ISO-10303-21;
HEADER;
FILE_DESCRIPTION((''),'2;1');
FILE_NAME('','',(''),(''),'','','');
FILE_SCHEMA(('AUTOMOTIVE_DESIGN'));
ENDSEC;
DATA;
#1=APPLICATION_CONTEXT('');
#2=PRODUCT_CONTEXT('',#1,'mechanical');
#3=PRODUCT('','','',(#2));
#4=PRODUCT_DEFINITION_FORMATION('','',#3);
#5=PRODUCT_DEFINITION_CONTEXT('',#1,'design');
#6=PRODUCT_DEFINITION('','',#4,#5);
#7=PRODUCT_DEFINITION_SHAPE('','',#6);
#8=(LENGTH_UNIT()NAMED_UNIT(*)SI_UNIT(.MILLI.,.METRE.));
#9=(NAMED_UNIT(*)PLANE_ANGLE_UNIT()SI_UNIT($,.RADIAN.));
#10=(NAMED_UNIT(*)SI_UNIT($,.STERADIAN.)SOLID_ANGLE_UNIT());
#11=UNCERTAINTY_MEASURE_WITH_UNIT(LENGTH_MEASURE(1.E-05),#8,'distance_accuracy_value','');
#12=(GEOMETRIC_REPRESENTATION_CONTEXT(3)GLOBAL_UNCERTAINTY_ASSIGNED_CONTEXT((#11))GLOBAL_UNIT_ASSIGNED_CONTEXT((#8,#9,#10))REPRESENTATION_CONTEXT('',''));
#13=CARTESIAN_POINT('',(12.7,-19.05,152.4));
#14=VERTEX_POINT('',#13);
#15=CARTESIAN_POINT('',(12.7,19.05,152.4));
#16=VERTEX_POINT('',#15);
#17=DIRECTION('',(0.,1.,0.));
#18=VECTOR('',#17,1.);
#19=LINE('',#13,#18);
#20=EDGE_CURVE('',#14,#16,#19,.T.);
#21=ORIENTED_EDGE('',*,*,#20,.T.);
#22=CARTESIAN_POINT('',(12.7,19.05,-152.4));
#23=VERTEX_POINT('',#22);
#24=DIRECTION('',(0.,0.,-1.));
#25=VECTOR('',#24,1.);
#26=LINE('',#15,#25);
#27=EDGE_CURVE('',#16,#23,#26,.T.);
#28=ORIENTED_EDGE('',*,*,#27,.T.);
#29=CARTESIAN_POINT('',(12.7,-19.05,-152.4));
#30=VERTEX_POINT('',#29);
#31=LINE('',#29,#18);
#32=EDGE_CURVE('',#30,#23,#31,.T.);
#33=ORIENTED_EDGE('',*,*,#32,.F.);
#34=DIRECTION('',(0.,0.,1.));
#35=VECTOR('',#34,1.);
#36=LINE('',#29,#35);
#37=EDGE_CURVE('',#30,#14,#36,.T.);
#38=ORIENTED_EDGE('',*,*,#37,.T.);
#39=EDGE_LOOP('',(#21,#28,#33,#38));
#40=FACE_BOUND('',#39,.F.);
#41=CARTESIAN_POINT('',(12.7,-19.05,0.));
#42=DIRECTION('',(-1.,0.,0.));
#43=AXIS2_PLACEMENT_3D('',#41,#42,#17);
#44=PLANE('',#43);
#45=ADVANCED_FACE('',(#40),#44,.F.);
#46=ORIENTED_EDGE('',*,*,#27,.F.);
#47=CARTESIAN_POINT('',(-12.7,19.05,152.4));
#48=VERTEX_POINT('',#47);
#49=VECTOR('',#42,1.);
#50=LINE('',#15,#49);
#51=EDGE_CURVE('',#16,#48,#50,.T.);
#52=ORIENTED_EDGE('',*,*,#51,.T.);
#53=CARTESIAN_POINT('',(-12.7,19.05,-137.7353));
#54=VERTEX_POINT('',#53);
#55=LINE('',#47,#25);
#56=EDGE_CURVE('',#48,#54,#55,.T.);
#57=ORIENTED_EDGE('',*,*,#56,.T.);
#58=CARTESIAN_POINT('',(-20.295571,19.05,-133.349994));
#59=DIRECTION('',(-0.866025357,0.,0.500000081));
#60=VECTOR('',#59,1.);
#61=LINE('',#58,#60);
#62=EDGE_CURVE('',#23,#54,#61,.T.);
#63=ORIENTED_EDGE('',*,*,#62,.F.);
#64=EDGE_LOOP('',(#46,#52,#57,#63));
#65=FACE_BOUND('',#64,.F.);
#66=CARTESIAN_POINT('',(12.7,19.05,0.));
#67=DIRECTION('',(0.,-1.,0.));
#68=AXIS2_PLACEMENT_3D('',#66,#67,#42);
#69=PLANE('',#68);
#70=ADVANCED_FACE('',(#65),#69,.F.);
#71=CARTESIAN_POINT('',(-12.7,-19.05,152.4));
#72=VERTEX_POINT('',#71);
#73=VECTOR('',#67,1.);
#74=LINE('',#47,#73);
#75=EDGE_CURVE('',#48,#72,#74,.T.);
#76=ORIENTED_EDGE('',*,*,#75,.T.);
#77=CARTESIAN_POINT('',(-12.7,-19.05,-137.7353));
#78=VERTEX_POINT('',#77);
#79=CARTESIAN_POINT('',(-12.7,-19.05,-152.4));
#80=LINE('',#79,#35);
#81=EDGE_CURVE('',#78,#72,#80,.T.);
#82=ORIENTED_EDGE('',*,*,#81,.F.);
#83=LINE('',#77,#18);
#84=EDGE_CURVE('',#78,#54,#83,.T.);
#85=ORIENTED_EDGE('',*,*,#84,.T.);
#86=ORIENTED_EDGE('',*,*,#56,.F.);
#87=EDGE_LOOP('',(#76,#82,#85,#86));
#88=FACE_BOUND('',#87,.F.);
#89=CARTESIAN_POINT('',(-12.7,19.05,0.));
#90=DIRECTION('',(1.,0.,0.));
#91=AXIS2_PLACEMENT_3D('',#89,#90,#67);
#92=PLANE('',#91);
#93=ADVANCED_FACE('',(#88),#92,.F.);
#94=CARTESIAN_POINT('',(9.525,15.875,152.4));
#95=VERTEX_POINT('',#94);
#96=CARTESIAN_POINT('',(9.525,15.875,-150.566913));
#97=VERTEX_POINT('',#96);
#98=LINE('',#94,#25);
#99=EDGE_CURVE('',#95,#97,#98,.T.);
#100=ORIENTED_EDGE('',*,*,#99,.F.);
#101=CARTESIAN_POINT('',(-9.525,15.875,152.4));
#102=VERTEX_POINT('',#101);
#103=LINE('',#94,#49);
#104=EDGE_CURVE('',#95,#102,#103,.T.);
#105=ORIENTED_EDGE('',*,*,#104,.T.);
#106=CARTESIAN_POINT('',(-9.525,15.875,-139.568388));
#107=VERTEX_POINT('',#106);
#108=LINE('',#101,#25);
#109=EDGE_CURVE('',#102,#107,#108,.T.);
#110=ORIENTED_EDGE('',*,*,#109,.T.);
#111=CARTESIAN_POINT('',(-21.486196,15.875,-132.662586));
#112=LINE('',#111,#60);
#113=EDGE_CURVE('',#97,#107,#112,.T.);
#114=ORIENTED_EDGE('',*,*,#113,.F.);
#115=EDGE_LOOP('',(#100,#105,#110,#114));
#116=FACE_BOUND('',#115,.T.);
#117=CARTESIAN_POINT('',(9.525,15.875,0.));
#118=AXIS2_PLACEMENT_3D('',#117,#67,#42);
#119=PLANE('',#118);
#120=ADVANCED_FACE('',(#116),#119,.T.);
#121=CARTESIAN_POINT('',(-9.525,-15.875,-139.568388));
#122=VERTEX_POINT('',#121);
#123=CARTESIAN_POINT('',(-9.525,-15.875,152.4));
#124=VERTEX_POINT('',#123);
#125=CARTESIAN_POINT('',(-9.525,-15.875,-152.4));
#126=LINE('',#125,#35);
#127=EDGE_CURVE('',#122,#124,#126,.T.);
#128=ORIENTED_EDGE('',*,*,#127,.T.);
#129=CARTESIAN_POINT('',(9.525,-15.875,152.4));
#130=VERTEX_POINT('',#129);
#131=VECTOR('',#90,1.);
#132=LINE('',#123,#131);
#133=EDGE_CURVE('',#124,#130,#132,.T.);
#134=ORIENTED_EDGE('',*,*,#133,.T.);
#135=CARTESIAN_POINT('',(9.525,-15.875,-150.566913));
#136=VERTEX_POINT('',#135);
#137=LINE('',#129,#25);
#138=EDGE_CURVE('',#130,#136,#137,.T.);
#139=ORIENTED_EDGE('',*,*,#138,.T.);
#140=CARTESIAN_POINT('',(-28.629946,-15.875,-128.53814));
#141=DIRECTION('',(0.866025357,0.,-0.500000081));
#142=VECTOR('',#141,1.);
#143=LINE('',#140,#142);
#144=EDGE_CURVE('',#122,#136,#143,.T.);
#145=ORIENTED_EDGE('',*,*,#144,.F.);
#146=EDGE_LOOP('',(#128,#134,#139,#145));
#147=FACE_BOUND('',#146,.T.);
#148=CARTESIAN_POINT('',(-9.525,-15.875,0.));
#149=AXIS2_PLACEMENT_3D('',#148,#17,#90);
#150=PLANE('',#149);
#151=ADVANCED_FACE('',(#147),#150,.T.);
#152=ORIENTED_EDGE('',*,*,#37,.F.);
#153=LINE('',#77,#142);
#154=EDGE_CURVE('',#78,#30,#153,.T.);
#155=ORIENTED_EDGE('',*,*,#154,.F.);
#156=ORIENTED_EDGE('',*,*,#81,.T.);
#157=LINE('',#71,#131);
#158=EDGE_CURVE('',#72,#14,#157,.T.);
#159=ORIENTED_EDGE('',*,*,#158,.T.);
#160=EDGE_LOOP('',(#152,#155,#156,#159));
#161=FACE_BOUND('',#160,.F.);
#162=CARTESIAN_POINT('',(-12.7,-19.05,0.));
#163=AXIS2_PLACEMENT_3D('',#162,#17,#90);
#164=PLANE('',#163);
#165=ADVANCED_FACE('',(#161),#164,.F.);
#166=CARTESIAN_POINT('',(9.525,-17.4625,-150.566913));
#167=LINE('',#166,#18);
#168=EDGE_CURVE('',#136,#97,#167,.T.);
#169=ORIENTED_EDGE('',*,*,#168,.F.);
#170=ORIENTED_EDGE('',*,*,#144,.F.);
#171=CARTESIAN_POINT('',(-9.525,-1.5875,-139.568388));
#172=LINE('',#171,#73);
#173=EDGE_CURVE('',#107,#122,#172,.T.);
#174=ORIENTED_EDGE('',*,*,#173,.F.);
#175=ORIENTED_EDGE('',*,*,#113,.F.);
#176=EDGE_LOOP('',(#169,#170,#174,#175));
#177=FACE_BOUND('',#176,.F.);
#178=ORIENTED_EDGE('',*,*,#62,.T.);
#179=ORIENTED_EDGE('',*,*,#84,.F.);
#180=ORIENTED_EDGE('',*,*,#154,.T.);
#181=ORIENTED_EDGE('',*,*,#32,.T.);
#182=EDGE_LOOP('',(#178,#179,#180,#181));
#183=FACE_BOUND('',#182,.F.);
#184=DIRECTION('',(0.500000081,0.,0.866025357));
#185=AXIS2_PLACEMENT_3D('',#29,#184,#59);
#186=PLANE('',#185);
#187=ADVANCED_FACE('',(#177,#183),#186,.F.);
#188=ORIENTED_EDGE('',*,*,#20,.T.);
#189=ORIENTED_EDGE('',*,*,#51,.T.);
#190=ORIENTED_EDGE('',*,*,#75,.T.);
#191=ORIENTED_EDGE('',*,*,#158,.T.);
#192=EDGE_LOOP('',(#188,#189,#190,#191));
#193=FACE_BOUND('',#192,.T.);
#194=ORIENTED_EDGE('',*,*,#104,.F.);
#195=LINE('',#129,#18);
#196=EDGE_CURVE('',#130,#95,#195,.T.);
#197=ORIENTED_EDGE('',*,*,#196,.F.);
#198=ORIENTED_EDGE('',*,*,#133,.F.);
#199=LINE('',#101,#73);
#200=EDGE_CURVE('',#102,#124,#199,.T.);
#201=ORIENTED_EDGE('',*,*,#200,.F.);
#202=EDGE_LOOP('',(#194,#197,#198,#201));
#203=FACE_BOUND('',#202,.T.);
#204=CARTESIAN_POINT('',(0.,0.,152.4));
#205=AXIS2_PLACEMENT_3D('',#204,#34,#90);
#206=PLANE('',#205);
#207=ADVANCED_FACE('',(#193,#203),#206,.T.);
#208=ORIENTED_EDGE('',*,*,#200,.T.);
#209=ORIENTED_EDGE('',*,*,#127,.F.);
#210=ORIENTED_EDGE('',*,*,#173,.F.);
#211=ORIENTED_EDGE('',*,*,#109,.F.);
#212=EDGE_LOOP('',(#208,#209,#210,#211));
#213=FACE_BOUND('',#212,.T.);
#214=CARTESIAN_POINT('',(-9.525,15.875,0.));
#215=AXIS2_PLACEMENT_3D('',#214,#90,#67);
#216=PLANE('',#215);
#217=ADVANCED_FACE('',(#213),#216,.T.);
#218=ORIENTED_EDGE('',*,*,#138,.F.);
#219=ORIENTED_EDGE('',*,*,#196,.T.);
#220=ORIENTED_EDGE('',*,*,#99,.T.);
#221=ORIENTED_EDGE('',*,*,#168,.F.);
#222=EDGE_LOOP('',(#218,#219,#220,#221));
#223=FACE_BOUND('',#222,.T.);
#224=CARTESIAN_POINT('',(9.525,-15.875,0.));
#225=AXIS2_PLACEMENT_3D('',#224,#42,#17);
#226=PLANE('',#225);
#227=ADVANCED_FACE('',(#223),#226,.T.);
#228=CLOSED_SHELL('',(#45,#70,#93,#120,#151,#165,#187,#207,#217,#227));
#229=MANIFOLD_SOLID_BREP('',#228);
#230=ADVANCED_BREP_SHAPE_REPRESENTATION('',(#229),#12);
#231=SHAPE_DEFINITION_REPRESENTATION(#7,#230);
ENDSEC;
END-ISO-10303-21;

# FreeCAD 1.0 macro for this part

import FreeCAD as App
import Part
import Sketcher

V = App.Vector
Q = App.Units.Quantity

doc = App.newDocument("Part")
body = doc.addObject("PartDesign::Body", "Body")

# Sketch on XY plane
sketch1 = doc.addObject("Sketcher::SketchObject", "Sketch")
body.addObject(sketch1)
sketch1.AttachmentSupport = (doc.XY_Plane, [""])
sketch1.MapMode = "FlatFace"
sketch1.addGeometry([
    Part.LineSegment(V(-13, 19, 0), V(-13, -19, 0)),  # 0
    Part.LineSegment(V(-13, -19, 0), V(13, -19, 0)),  # 1
    Part.LineSegment(V(13, -19, 0), V(13, 19, 0)),  # 2
    Part.LineSegment(V(13, 19, 0), V(-13, 19, 0)),  # 3
    Part.LineSegment(V(10, -16, 0), V(-10, -16, 0)),  # 4
    Part.LineSegment(V(-10, -16, 0), V(-10, 16, 0)),  # 5
    Part.LineSegment(V(-10, 16, 0), V(10, 16, 0)),  # 6
    Part.LineSegment(V(10, 16, 0), V(10, -16, 0)),  # 7
], False)
sketch1.addConstraint([
    Sketcher.Constraint("Coincident", 0, 2, 1, 1),
    Sketcher.Constraint("Coincident", 1, 2, 2, 1),
    Sketcher.Constraint("Coincident", 2, 2, 3, 1),
    Sketcher.Constraint("Coincident", 3, 2, 0, 1),
    Sketcher.Constraint("Coincident", 4, 2, 5, 1),
    Sketcher.Constraint("Coincident", 5, 2, 6, 1),
    Sketcher.Constraint("Coincident", 6, 2, 7, 1),
    Sketcher.Constraint("Coincident", 7, 2, 4, 1),
    Sketcher.Constraint("Vertical", 0),
    Sketcher.Constraint("Horizontal", 1),
    Sketcher.Constraint("Vertical", 2),
    Sketcher.Constraint("Horizontal", 3),
    Sketcher.Constraint("Horizontal", 4),
    Sketcher.Constraint("Vertical", 5),
    Sketcher.Constraint("Horizontal", 6),
    Sketcher.Constraint("Vertical", 7),
    Sketcher.Constraint("Symmetric", 0, 2, 2, 2, -1, 1),
    Sketcher.Constraint("Symmetric", 4, 2, 6, 2, -1, 1),
    Sketcher.Constraint("DistanceX", 1, 1, 1, 2, Q("1 in")),
    Sketcher.Constraint("DistanceY", 0, 2, 0, 1, Q("1.5 in")),
    Sketcher.Constraint("DistanceX", 0, 2, 4, 2, Q("0.125 in")),
    Sketcher.Constraint("DistanceY", 0, 2, 4, 2, Q("0.125 in")),
])
pad1 = doc.addObject("PartDesign::Pad", "Pad")
body.addObject(pad1)
pad1.Profile = sketch1
pad1.Length = Q("12 in")
pad1.Midplane = True

# Sketch on XZ plane
sketch2 = doc.addObject("Sketcher::SketchObject", "Sketch001")
body.addObject(sketch2)
sketch2.AttachmentSupport = (doc.XZ_Plane, [""])
sketch2.MapMode = "FlatFace"
sketch2.AttachmentOffset = App.Placement(V(0, 0, 0.75 * 25.4), App.Rotation())
sketch2.addGeometry([
    Part.LineSegment(V(13, -152, 0), V(-13, -138, 0)),
    Part.LineSegment(V(-13, -138, 0), V(-13, -152, 0)),
    Part.LineSegment(V(-13, -152, 0), V(13, -152, 0)),
], False)
sketch2.addConstraint([
    Sketcher.Constraint("Coincident", 0, 2, 1, 1),
    Sketcher.Constraint("Coincident", 1, 2, 2, 1),
    Sketcher.Constraint("Coincident", 2, 2, 0, 1),
    Sketcher.Constraint("Vertical", 1),
    Sketcher.Constraint("Horizontal", 2),
    Sketcher.Constraint("DistanceX", 2, 1, 2, 2, Q("1 in")),
    Sketcher.Constraint("DistanceY", 1, 2, -1, 1, Q("6 in")),
    Sketcher.Constraint("Angle", 0, Q("150 deg")),
    Sketcher.Constraint("DistanceX", 0, 2, -1, 1, Q("0.5 in")),
])
pocket1 = doc.addObject("PartDesign::Pocket", "Pocket")
body.addObject(pocket1)
pocket1.Profile = sketch2
pocket1.Type = "ThroughAll"

doc.recompute()
